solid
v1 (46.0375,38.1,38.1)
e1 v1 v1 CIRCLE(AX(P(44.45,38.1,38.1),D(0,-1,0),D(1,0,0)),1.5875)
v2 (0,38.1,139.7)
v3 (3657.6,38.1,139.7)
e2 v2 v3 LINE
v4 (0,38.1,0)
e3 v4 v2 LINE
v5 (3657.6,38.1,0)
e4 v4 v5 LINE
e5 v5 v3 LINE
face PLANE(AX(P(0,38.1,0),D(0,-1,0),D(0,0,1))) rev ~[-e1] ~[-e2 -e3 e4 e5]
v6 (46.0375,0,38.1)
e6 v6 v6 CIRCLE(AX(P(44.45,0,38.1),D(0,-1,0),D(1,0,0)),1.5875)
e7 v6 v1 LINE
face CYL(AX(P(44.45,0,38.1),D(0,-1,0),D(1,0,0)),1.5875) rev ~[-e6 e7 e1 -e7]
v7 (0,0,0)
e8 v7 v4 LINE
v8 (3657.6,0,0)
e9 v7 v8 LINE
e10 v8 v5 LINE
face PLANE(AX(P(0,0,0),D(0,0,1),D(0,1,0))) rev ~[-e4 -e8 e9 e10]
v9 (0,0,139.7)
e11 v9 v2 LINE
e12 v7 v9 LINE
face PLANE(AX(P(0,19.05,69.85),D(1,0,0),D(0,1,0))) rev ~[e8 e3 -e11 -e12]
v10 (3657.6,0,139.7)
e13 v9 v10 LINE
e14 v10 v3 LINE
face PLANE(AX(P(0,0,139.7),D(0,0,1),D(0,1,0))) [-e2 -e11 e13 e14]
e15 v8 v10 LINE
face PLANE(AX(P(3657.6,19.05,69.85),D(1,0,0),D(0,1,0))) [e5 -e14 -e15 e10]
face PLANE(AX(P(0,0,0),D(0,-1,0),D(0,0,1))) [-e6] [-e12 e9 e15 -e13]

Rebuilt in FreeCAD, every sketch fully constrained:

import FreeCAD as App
import Part
import Sketcher
from FreeCAD import Vector
Q = App.Units.Quantity

doc = App.newDocument("Part")
body = doc.addObject("PartDesign::Body", "Body")

# Sketch on YZ plane
sketch1 = body.newObject("Sketcher::SketchObject", "Sketch")
sketch1.AttachmentSupport = (doc.getObject("YZ_Plane"), [""])
sketch1.MapMode = "FlatFace"
sketch1.addGeometry([
    Part.LineSegment(Vector(0, 140, 0), Vector(0, 0, 0)),
    Part.LineSegment(Vector(0, 0, 0), Vector(38, 0, 0)),
    Part.LineSegment(Vector(38, 0, 0), Vector(38, 140, 0)),
    Part.LineSegment(Vector(38, 140, 0), Vector(0, 140, 0)),
], False)
sketch1.addConstraint([
    Sketcher.Constraint("Coincident", 0, 2, 1, 1),
    Sketcher.Constraint("Coincident", 1, 2, 2, 1),
    Sketcher.Constraint("Coincident", 2, 2, 3, 1),
    Sketcher.Constraint("Coincident", 3, 2, 0, 1),
    Sketcher.Constraint("Vertical", 0),
    Sketcher.Constraint("Horizontal", 1),
    Sketcher.Constraint("Vertical", 2),
    Sketcher.Constraint("Horizontal", 3),
    Sketcher.Constraint("Coincident", 0, 2, -1, 1),
    Sketcher.Constraint("DistanceX", 1, 1, 1, 2, Q("1.5 in")),
    Sketcher.Constraint("DistanceY", 0, 2, 0, 1, Q("5.5 in")),
])
pad1 = body.newObject("PartDesign::Pad", "Pad")
pad1.Profile = sketch1
pad1.Length = Q("144 in")

# Sketch on XZ plane
sketch2 = body.newObject("Sketcher::SketchObject", "Sketch001")
sketch2.AttachmentSupport = (doc.getObject("XZ_Plane"), [""])
sketch2.MapMode = "FlatFace"
sketch2.addGeometry(Part.Circle(Vector(44.5, 38.1, 0), Vector(0, 0, 1), 1.6), False)
sketch2.addConstraint([
    Sketcher.Constraint("Diameter", 0, Q("0.125 in")),
    Sketcher.Constraint("DistanceY", -1, 1, 0, 3, Q("1.5 in")),
    Sketcher.Constraint("DistanceX", -1, 1, 0, 3, Q("1.75 in")),
])
pocket1 = body.newObject("PartDesign::Pocket", "Pocket")
pocket1.Profile = sketch2
pocket1.Type = "ThroughAll"

doc.recompute()
